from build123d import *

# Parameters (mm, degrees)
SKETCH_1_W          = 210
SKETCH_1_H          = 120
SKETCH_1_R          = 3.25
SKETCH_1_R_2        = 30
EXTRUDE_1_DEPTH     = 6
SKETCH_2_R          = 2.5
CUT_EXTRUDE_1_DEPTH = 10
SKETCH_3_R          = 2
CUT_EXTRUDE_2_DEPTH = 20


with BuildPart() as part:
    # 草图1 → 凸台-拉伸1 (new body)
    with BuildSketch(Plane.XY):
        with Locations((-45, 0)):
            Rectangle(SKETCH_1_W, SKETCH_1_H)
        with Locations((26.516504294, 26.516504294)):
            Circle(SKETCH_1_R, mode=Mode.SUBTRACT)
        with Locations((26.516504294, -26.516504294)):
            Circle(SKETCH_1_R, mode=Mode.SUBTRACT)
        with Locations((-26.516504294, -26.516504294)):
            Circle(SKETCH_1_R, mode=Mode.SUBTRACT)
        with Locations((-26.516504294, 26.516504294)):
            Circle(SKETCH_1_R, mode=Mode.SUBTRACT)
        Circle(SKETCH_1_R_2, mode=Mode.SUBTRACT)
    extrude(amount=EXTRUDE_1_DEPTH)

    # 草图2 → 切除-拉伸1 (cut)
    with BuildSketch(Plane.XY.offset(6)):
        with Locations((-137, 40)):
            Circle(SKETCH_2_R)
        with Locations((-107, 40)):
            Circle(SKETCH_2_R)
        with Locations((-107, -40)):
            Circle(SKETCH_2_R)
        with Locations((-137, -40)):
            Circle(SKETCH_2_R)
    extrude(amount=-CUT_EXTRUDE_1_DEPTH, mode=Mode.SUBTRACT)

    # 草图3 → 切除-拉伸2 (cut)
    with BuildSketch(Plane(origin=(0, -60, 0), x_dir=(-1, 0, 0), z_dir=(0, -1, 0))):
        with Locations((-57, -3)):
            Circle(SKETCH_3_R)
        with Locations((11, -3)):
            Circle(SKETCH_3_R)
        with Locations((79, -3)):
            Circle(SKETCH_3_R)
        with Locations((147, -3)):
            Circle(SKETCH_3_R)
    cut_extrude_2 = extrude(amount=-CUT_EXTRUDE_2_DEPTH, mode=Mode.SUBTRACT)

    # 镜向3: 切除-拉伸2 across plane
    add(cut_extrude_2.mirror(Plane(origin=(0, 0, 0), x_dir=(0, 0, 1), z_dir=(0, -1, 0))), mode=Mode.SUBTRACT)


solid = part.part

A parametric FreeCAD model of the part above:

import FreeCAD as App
import Part
import Sketcher


def add_polygon(sketch, points):
    """Adds a closed chain of lines whose ends are joined by coincident constraints."""
    first, n = sketch.GeometryCount, len(points)
    for a, b in zip(points, points[1:] + points[:1]):
        sketch.addGeometry(Part.LineSegment(App.Vector(*a, 0), App.Vector(*b, 0)), False)
    for i in range(n):
        sketch.addConstraint(Sketcher.Constraint("Coincident", first + i, 2, first + (i + 1) % n, 1))

doc = App.newDocument("Part")
body = doc.addObject("PartDesign::Body", "Body")

# Sketch on XY plane
sketch1 = body.newObject("Sketcher::SketchObject", "Sketch")
sketch1.AttachmentSupport = (doc.getObject("XY_Plane"), [""])
sketch1.MapMode = "FlatFace"
add_polygon(sketch1, [(-150, 60), (-150, -60), (60, -60), (60, 60)])  # lines 0-3
sketch1.addGeometry(Part.Circle(App.Vector(-26.5, -26.5, 0), App.Vector(0, 0, 1), 3.2), False)  # 4
sketch1.addGeometry(Part.Circle(App.Vector(26.5, -26.5, 0), App.Vector(0, 0, 1), 3.2), False)  # 5
sketch1.addGeometry(Part.Circle(App.Vector(-26.5, 26.5, 0), App.Vector(0, 0, 1), 3.2), False)  # 6
sketch1.addGeometry(Part.Circle(App.Vector(0, 0, 0), App.Vector(0, 0, 1), 30), False)  # 7
sketch1.addGeometry(Part.Circle(App.Vector(26.5, 26.5, 0), App.Vector(0, 0, 1), 3.2), False)  # 8
sketch1.addConstraint(Sketcher.Constraint("Vertical", 0))
sketch1.addConstraint(Sketcher.Constraint("Horizontal", 1))
sketch1.addConstraint(Sketcher.Constraint("Vertical", 2))
sketch1.addConstraint(Sketcher.Constraint("Horizontal", 3))
sketch1.addConstraint(Sketcher.Constraint("Coincident", 7, 3, -1, 1))
sketch1.addConstraint(Sketcher.Constraint("Equal", 4, 5))
sketch1.addConstraint(Sketcher.Constraint("Equal", 5, 6))
sketch1.addConstraint(Sketcher.Constraint("Equal", 6, 8))
sketch1.addConstraint(Sketcher.Constraint("Symmetric", 5, 3, 6, 3, -1, 1))
sketch1.addConstraint(Sketcher.Constraint("Symmetric", 4, 3, 8, 3, -1, 1))
sketch1.addConstraint(Sketcher.Constraint("Symmetric", 4, 3, 5, 3, -2))
sketch1.addConstraint(Sketcher.Constraint("Diameter", 7, 60.0))
sketch1.addConstraint(Sketcher.Constraint("Diameter", 4, 6.5))
sketch1.addConstraint(Sketcher.Constraint("DistanceX", 1, 1, 1, 2, 210.0))
sketch1.addConstraint(Sketcher.Constraint("DistanceY", 0, 2, 0, 1, 120.0))
sketch1.addConstraint(Sketcher.Constraint("DistanceX", 0, 2, -1, 1, 150.0))
sketch1.addConstraint(Sketcher.Constraint("DistanceY", 0, 2, -1, 1, 60.0))
sketch1.addConstraint(Sketcher.Constraint("DistanceX", 4, 3, 5, 3, 53.033009))
sketch1.addConstraint(Sketcher.Constraint("DistanceY", 4, 3, 6, 3, 53.033009))
pad1 = body.newObject("PartDesign::Pad", "Pad")
pad1.Profile = sketch1
pad1.Length = 6

# Sketch on XY plane
sketch2 = body.newObject("Sketcher::SketchObject", "Sketch001")
sketch2.AttachmentSupport = (doc.getObject("XY_Plane"), [""])
sketch2.MapMode = "FlatFace"
sketch2.AttachmentOffset = App.Placement(App.Vector(0, 0, 6), App.Rotation())
sketch2.addGeometry(Part.Circle(App.Vector(-137, 40, 0), App.Vector(0, 0, 1), 2.5), False)
sketch2.addGeometry(Part.Circle(App.Vector(-107, 40, 0), App.Vector(0, 0, 1), 2.5), False)
sketch2.addGeometry(Part.Circle(App.Vector(-107, -40, 0), App.Vector(0, 0, 1), 2.5), False)
sketch2.addGeometry(Part.Circle(App.Vector(-137, -40, 0), App.Vector(0, 0, 1), 2.5), False)
sketch2.addConstraint(Sketcher.Constraint("Equal", 0, 1))
sketch2.addConstraint(Sketcher.Constraint("Equal", 1, 2))
sketch2.addConstraint(Sketcher.Constraint("Equal", 2, 3))
sketch2.addConstraint(Sketcher.Constraint("Symmetric", 1, 3, 2, 3, -1))
sketch2.addConstraint(Sketcher.Constraint("Symmetric", 0, 3, 3, 3, -1))
sketch2.addConstraint(Sketcher.Constraint("Horizontal", 0, 3, 1, 3))
sketch2.addConstraint(Sketcher.Constraint("Diameter", 0, 5.0))
sketch2.addConstraint(Sketcher.Constraint("DistanceX", 0, 3, -1, 1, 137.0))
sketch2.addConstraint(Sketcher.Constraint("DistanceY", -1, 1, 0, 3, 40.0))
sketch2.addConstraint(Sketcher.Constraint("DistanceX", 1, 3, -1, 1, 107.0))
pocket1 = body.newObject("PartDesign::Pocket", "Pocket")
pocket1.Profile = sketch2
pocket1.Length = 10

# Sketch on XZ plane
sketch3 = body.newObject("Sketcher::SketchObject", "Sketch002")
sketch3.AttachmentSupport = (doc.getObject("XZ_Plane"), [""])
sketch3.MapMode = "FlatFace"
sketch3.AttachmentOffset = App.Placement(App.Vector(0, 0, 60), App.Rotation())
sketch3.addGeometry(Part.Circle(App.Vector(57, 3, 0), App.Vector(0, 0, 1), 2), False)
sketch3.addGeometry(Part.Circle(App.Vector(-11, 3, 0), App.Vector(0, 0, 1), 2), False)
sketch3.addGeometry(Part.Circle(App.Vector(-79, 3, 0), App.Vector(0, 0, 1), 2), False)
sketch3.addGeometry(Part.Circle(App.Vector(-147, 3, 0), App.Vector(0, 0, 1), 2), False)
sketch3.addConstraint(Sketcher.Constraint("Equal", 0, 1))
sketch3.addConstraint(Sketcher.Constraint("Equal", 1, 2))
sketch3.addConstraint(Sketcher.Constraint("Equal", 2, 3))
sketch3.addConstraint(Sketcher.Constraint("Horizontal", 0, 3, 1, 3))
sketch3.addConstraint(Sketcher.Constraint("Horizontal", 1, 3, 2, 3))
sketch3.addConstraint(Sketcher.Constraint("Horizontal", 2, 3, 3, 3))
sketch3.addConstraint(Sketcher.Constraint("Diameter", 0, 4.0))
sketch3.addConstraint(Sketcher.Constraint("DistanceX", -1, 1, 0, 3, 57.0))
sketch3.addConstraint(Sketcher.Constraint("DistanceY", -1, 1, 0, 3, 3.0))
sketch3.addConstraint(Sketcher.Constraint("DistanceX", 1, 3, -1, 1, 11.0))
sketch3.addConstraint(Sketcher.Constraint("DistanceX", 2, 3, -1, 1, 79.0))
sketch3.addConstraint(Sketcher.Constraint("DistanceX", 3, 3, -1, 1, 147.0))
pocket2 = body.newObject("PartDesign::Pocket", "Pocket001")
pocket2.Profile = sketch3
pocket2.Length = 20
doc.recompute()

mirrored = body.newObject("PartDesign::Mirrored", "Mirrored")
mirrored.Originals = [pocket2]
mirrored.MirrorPlane = (doc.getObject("XZ_Plane"), [""])
body.Tip = mirrored

doc.recompute()
